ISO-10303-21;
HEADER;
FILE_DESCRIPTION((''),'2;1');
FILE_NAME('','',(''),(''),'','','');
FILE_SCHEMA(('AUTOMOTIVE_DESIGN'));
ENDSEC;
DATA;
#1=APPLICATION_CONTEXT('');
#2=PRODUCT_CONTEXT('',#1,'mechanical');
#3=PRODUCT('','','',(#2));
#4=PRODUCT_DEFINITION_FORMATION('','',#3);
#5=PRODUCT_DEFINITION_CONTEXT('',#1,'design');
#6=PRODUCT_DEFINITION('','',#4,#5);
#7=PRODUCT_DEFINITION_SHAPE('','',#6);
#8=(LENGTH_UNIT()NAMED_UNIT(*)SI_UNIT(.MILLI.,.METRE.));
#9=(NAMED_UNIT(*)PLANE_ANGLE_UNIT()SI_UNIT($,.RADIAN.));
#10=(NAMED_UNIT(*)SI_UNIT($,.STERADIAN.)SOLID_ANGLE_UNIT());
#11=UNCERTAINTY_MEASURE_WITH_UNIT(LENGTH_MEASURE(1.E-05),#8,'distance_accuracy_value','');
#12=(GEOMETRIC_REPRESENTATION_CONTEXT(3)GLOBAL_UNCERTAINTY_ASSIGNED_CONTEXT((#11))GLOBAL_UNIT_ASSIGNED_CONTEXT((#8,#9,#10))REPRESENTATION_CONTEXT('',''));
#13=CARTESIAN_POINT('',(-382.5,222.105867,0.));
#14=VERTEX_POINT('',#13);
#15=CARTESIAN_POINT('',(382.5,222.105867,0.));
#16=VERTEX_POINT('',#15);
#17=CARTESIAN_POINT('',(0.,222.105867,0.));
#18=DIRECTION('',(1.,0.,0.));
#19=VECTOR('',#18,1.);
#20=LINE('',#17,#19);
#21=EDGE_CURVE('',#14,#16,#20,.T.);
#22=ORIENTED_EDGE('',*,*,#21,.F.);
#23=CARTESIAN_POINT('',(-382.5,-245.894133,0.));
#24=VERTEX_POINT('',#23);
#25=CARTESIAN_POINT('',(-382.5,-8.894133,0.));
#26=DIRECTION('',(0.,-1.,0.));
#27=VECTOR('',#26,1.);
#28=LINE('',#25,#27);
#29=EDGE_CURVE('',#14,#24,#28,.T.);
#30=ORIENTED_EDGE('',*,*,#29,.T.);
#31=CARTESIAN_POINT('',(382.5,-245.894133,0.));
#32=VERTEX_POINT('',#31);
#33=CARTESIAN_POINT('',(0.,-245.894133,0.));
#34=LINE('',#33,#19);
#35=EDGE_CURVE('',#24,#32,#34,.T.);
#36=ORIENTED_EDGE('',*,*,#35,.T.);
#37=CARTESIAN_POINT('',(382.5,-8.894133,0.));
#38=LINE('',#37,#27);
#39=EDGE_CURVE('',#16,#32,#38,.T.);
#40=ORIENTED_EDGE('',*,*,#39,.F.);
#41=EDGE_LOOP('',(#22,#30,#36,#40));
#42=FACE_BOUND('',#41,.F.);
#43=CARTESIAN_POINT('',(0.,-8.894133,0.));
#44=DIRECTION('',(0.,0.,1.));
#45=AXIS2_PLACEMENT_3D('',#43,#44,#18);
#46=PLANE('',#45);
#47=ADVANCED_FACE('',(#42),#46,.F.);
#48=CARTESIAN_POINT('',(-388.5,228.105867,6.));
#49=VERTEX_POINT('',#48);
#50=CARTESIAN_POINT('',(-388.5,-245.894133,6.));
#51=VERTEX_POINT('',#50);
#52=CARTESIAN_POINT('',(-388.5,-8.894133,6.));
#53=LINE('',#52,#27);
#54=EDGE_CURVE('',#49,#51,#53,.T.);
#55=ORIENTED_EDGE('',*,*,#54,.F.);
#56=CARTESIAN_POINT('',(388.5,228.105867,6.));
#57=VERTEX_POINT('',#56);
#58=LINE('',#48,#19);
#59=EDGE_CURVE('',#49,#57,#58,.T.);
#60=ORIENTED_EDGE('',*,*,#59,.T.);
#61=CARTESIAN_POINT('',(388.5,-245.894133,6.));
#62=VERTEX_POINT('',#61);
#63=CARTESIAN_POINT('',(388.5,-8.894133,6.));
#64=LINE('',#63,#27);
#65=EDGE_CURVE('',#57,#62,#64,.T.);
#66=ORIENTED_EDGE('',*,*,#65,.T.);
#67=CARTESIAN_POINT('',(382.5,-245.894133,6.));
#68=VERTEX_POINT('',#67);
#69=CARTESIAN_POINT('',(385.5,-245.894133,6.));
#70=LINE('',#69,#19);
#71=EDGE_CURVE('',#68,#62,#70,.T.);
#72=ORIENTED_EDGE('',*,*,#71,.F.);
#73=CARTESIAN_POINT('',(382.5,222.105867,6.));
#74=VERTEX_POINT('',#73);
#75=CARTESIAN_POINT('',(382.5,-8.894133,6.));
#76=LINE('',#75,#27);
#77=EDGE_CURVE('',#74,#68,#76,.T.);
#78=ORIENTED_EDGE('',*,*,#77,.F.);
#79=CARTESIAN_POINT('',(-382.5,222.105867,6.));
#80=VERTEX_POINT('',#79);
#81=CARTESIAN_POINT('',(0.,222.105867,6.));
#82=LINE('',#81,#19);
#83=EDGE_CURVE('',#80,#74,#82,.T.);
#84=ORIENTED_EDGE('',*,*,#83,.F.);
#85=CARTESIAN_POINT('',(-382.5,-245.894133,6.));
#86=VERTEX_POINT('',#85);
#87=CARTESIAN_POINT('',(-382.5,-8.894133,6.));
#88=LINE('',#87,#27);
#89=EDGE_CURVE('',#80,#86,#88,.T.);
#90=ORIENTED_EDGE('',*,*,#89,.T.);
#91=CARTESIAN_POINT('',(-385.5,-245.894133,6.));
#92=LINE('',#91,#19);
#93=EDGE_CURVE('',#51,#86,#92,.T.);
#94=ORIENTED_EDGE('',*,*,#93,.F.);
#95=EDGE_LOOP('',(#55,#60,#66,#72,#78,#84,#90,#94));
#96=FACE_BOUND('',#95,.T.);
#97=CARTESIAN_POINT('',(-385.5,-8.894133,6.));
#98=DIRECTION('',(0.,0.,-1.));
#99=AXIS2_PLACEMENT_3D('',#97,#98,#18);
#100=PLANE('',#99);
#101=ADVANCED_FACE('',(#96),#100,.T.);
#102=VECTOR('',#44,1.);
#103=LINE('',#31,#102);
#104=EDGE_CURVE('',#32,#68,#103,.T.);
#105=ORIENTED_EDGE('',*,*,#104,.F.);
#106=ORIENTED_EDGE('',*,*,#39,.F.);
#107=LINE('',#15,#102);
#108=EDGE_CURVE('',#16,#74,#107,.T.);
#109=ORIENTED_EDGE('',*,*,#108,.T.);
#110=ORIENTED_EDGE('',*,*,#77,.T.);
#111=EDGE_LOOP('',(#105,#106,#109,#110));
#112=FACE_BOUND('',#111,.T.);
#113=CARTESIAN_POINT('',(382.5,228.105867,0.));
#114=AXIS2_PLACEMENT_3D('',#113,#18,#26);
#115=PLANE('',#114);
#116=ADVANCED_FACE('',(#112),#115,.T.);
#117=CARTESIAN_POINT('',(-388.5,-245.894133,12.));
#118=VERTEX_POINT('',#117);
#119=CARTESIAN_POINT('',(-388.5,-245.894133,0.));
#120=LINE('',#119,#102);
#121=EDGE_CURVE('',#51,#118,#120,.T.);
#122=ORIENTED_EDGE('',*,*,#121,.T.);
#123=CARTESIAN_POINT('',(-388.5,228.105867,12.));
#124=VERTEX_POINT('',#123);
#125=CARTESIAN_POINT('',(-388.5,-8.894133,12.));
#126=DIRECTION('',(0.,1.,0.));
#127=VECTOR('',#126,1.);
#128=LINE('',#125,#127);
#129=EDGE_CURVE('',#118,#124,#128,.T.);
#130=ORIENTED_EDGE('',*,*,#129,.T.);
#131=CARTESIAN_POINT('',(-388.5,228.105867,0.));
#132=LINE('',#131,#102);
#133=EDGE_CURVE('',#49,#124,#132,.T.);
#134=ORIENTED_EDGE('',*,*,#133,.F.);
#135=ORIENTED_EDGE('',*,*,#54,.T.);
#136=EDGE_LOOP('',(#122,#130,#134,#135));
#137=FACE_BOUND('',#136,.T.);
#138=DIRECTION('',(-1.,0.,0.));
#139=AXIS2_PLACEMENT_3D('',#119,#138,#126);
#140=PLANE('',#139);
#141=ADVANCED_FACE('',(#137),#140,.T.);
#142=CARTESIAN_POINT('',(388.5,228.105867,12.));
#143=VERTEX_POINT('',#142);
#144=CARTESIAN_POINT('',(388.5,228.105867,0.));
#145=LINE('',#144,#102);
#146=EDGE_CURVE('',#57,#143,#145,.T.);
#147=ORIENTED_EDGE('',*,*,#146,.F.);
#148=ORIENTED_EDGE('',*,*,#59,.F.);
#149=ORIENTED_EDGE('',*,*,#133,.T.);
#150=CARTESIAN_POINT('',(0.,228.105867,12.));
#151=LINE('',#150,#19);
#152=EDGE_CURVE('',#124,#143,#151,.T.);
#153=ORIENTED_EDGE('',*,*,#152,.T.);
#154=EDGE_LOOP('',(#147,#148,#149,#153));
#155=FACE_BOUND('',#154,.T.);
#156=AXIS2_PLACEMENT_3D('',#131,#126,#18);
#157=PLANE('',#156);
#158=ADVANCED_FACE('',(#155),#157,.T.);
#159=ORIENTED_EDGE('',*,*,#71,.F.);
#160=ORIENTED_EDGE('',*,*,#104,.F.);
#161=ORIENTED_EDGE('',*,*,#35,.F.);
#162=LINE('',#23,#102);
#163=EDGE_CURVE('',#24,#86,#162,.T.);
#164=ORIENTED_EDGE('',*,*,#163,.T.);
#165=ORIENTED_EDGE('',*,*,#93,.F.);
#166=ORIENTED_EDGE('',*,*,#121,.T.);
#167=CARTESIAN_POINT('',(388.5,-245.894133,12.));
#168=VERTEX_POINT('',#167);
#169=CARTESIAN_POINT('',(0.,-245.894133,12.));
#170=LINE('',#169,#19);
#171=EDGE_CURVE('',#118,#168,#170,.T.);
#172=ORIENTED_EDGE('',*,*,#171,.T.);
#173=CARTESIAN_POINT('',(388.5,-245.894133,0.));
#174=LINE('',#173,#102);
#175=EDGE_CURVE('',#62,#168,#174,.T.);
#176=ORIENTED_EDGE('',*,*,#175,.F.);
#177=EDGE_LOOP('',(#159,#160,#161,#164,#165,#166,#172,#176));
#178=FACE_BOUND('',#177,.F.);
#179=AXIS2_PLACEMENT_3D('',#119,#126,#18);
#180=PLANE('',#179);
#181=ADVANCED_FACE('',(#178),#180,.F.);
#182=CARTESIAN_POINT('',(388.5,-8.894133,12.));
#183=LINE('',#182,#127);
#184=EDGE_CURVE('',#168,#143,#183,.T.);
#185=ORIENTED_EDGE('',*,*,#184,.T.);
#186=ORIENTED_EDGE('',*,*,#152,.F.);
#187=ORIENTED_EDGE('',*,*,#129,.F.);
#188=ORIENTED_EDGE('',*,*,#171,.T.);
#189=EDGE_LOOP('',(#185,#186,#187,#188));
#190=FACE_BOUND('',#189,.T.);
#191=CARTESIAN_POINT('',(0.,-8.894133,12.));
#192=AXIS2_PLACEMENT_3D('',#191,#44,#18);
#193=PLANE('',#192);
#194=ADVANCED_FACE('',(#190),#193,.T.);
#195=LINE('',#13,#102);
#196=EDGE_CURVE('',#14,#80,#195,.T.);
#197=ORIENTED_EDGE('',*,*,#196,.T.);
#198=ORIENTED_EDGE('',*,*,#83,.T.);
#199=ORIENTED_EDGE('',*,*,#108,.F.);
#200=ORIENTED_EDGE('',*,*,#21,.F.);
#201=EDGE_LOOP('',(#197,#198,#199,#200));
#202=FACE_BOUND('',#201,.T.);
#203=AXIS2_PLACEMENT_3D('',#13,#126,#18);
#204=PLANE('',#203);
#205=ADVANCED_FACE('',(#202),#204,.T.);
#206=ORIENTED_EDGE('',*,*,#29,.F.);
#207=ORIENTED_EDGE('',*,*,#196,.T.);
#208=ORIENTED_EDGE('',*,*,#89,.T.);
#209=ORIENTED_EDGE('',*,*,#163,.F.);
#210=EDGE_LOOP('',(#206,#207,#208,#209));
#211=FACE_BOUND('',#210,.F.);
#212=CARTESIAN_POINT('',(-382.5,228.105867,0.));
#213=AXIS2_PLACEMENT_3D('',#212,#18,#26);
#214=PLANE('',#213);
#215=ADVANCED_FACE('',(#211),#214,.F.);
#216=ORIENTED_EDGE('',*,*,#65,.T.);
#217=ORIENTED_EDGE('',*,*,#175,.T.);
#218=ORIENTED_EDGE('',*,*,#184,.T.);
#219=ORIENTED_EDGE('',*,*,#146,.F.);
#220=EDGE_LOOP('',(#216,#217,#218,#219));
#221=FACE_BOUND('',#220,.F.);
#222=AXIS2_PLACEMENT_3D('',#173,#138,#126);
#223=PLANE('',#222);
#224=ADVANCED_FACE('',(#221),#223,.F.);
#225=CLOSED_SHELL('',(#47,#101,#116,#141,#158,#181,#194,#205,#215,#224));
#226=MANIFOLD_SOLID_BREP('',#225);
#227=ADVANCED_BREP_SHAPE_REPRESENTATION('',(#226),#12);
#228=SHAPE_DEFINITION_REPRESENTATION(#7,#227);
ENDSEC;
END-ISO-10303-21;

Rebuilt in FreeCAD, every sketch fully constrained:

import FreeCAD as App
import Part
import Sketcher

V = App.Vector
Q = App.Units.Quantity

doc = App.newDocument("Part")
body = doc.addObject("PartDesign::Body", "Body")

sketch1 = doc.addObject("Sketcher::SketchObject", "Sketch")
body.addObject(sketch1)
sketch1.AttachmentSupport = (doc.XY_Plane, [""])
sketch1.MapMode = "FlatFace"
sketch1.addGeometry(Part.LineSegment(V(-388, 228, 0), V(-388, -246, 0)), False)
sketch1.addGeometry(Part.LineSegment(V(-388, -246, 0), V(388, -246, 0)), False)
sketch1.addGeometry(Part.LineSegment(V(388, -246, 0), V(388, 228, 0)), False)
sketch1.addGeometry(Part.LineSegment(V(388, 228, 0), V(-388, 228, 0)), False)
sketch1.addConstraint(Sketcher.Constraint("Coincident", 0, 2, 1, 1))
sketch1.addConstraint(Sketcher.Constraint("Coincident", 1, 2, 2, 1))
sketch1.addConstraint(Sketcher.Constraint("Coincident", 2, 2, 3, 1))
sketch1.addConstraint(Sketcher.Constraint("Coincident", 3, 2, 0, 1))
sketch1.addConstraint(Sketcher.Constraint("Vertical", 0))
sketch1.addConstraint(Sketcher.Constraint("Horizontal", 1))
sketch1.addConstraint(Sketcher.Constraint("Vertical", 2))
sketch1.addConstraint(Sketcher.Constraint("Horizontal", 3))
sketch1.addConstraint(Sketcher.Constraint("DistanceX", 1, 1, 1, 2, Q("777 mm")))
sketch1.addConstraint(Sketcher.Constraint("DistanceY", 0, 2, 0, 1, Q("474 mm")))
sketch1.addConstraint(Sketcher.Constraint("DistanceX", 0, 2, -1, 1, Q("388.5 mm")))
sketch1.addConstraint(Sketcher.Constraint("DistanceY", 0, 2, -1, 1, Q("245.894133 mm")))
pad1 = doc.addObject("PartDesign::Pad", "Pad")
body.addObject(pad1)
pad1.Profile = sketch1
pad1.Length = 12

sketch2 = doc.addObject("Sketcher::SketchObject", "Sketch001")
body.addObject(sketch2)
sketch2.AttachmentSupport = (doc.XY_Plane, [""])
sketch2.MapMode = "FlatFace"
sketch2.addGeometry(Part.LineSegment(V(-388, -246, 0), V(-388, 228, 0)), False)
sketch2.addGeometry(Part.LineSegment(V(-388, 228, 0), V(-382, 228, 0)), False)
sketch2.addGeometry(Part.LineSegment(V(-382, 228, 0), V(-382, -246, 0)), False)
sketch2.addGeometry(Part.LineSegment(V(-382, -246, 0), V(-388, -246, 0)), False)
sketch2.addConstraint(Sketcher.Constraint("Coincident", 0, 2, 1, 1))
sketch2.addConstraint(Sketcher.Constraint("Coincident", 1, 2, 2, 1))
sketch2.addConstraint(Sketcher.Constraint("Coincident", 2, 2, 3, 1))
sketch2.addConstraint(Sketcher.Constraint("Coincident", 3, 2, 0, 1))
sketch2.addConstraint(Sketcher.Constraint("Vertical", 0))
sketch2.addConstraint(Sketcher.Constraint("Horizontal", 1))
sketch2.addConstraint(Sketcher.Constraint("Vertical", 2))
sketch2.addConstraint(Sketcher.Constraint("Horizontal", 3))
sketch2.addConstraint(Sketcher.Constraint("DistanceX", 1, 1, 1, 2, Q("6 mm")))
sketch2.addConstraint(Sketcher.Constraint("DistanceY", 0, 1, 0, 2, Q("474 mm")))
sketch2.addConstraint(Sketcher.Constraint("DistanceX", 0, 2, -1, 1, Q("388.5 mm")))
sketch2.addConstraint(Sketcher.Constraint("DistanceY", -1, 1, 0, 2, Q("228.105867 mm")))
pocket1 = doc.addObject("PartDesign::Pocket", "Pocket")
body.addObject(pocket1)
pocket1.Profile = sketch2
pocket1.Length = 6
pocket1.Reversed = True

sketch3 = doc.addObject("Sketcher::SketchObject", "Sketch002")
body.addObject(sketch3)
sketch3.AttachmentSupport = (doc.XY_Plane, [""])
sketch3.MapMode = "FlatFace"
sketch3.addGeometry(Part.LineSegment(V(382, -246, 0), V(382, 228, 0)), False)
sketch3.addGeometry(Part.LineSegment(V(382, 228, 0), V(388, 228, 0)), False)
sketch3.addGeometry(Part.LineSegment(V(388, 228, 0), V(388, -246, 0)), False)
sketch3.addGeometry(Part.LineSegment(V(388, -246, 0), V(382, -246, 0)), False)
sketch3.addConstraint(Sketcher.Constraint("Coincident", 0, 2, 1, 1))
sketch3.addConstraint(Sketcher.Constraint("Coincident", 1, 2, 2, 1))
sketch3.addConstraint(Sketcher.Constraint("Coincident", 2, 2, 3, 1))
sketch3.addConstraint(Sketcher.Constraint("Coincident", 3, 2, 0, 1))
sketch3.addConstraint(Sketcher.Constraint("Vertical", 0))
sketch3.addConstraint(Sketcher.Constraint("Horizontal", 1))
sketch3.addConstraint(Sketcher.Constraint("Vertical", 2))
sketch3.addConstraint(Sketcher.Constraint("Horizontal", 3))
sketch3.addConstraint(Sketcher.Constraint("DistanceX", 1, 1, 1, 2, Q("6 mm")))
sketch3.addConstraint(Sketcher.Constraint("DistanceY", 0, 1, 0, 2, Q("474 mm")))
sketch3.addConstraint(Sketcher.Constraint("DistanceX", -1, 1, 0, 2, Q("382.5 mm")))
sketch3.addConstraint(Sketcher.Constraint("DistanceY", -1, 1, 0, 2, Q("228.105867 mm")))
pocket2 = doc.addObject("PartDesign::Pocket", "Pocket001")
body.addObject(pocket2)
pocket2.Profile = sketch3
pocket2.Length = 6
pocket2.Reversed = True

sketch4 = doc.addObject("Sketcher::SketchObject", "Sketch003")
body.addObject(sketch4)
sketch4.AttachmentSupport = (doc.XY_Plane, [""])
sketch4.MapMode = "FlatFace"
sketch4.addGeometry(Part.LineSegment(V(-382, 222, 0), V(-382, 228, 0)), False)
sketch4.addGeometry(Part.LineSegment(V(-382, 228, 0), V(382, 228, 0)), False)
sketch4.addGeometry(Part.LineSegment(V(382, 228, 0), V(382, 222, 0)), False)
sketch4.addGeometry(Part.LineSegment(V(382, 222, 0), V(-382, 222, 0)), False)
sketch4.addConstraint(Sketcher.Constraint("Coincident", 0, 2, 1, 1))
sketch4.addConstraint(Sketcher.Constraint("Coincident", 1, 2, 2, 1))
sketch4.addConstraint(Sketcher.Constraint("Coincident", 2, 2, 3, 1))
sketch4.addConstraint(Sketcher.Constraint("Coincident", 3, 2, 0, 1))
sketch4.addConstraint(Sketcher.Constraint("Vertical", 0))
sketch4.addConstraint(Sketcher.Constraint("Horizontal", 1))
sketch4.addConstraint(Sketcher.Constraint("Vertical", 2))
sketch4.addConstraint(Sketcher.Constraint("Horizontal", 3))
sketch4.addConstraint(Sketcher.Constraint("DistanceX", 1, 1, 1, 2, Q("765 mm")))
sketch4.addConstraint(Sketcher.Constraint("DistanceY", 0, 1, 0, 2, Q("6 mm")))
sketch4.addConstraint(Sketcher.Constraint("DistanceX", 0, 2, -1, 1, Q("382.5 mm")))
sketch4.addConstraint(Sketcher.Constraint("DistanceY", -1, 1, 0, 2, Q("228.105867 mm")))
pocket3 = doc.addObject("PartDesign::Pocket", "Pocket002")
body.addObject(pocket3)
pocket3.Profile = sketch4
pocket3.Length = 6
pocket3.Reversed = True

doc.recompute()
